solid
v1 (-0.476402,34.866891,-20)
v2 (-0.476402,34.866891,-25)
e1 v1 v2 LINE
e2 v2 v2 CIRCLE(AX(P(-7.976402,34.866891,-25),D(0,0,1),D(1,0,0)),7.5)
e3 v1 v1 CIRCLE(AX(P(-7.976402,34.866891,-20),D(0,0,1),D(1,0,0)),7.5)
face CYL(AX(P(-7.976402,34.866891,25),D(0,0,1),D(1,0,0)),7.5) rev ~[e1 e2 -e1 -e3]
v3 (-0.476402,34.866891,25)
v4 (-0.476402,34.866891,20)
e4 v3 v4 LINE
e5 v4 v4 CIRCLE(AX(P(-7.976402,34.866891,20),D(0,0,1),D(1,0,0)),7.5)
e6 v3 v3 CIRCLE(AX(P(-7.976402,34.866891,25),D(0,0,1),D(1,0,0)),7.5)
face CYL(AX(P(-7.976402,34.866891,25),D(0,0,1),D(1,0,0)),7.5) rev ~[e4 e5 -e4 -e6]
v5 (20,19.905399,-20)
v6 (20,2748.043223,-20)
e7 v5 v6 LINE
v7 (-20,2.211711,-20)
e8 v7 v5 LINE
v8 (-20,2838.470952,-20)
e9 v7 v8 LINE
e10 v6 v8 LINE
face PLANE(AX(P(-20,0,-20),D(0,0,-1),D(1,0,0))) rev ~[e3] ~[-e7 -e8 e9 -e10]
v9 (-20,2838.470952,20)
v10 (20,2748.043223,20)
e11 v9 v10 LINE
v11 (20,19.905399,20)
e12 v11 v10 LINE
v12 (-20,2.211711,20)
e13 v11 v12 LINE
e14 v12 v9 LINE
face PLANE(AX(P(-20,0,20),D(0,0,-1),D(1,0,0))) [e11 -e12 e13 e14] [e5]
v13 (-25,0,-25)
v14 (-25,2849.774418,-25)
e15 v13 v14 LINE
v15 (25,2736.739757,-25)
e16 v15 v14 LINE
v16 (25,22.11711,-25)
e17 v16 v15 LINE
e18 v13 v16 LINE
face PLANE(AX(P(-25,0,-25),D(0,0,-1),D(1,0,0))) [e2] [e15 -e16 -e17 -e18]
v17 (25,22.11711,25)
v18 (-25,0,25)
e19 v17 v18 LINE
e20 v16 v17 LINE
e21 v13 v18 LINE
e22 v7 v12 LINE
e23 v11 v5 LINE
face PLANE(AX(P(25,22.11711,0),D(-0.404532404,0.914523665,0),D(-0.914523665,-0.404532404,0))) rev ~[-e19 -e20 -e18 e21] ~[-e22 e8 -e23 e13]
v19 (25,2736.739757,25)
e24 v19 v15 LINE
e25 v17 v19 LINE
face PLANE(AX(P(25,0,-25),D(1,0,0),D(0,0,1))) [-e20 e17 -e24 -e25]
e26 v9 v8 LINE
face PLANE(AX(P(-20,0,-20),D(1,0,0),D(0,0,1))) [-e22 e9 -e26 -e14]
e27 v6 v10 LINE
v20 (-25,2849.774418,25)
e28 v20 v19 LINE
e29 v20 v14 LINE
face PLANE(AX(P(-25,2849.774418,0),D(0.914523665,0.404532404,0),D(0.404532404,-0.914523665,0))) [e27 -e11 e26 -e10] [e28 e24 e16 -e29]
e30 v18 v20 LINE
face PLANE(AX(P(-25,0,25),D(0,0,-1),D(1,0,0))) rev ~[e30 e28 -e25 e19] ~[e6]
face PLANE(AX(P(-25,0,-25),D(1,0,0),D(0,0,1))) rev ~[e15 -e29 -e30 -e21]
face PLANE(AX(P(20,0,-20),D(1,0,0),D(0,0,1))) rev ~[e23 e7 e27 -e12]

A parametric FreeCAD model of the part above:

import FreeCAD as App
import Part
import Sketcher
from FreeCAD import Vector
Q = App.Units.Quantity

doc = App.newDocument("Part")
body = doc.addObject("PartDesign::Body", "Body")

# Sketch on XZ plane
sketch1 = body.newObject("Sketcher::SketchObject", "Sketch")
sketch1.AttachmentSupport = (doc.getObject("XZ_Plane"), [""])
sketch1.MapMode = "FlatFace"
sketch1.addGeometry([
    Part.LineSegment(Vector(-25, 25, 0), Vector(-25, -25, 0)),  # 0
    Part.LineSegment(Vector(-25, -25, 0), Vector(25, -25, 0)),  # 1
    Part.LineSegment(Vector(25, -25, 0), Vector(25, 25, 0)),  # 2
    Part.LineSegment(Vector(25, 25, 0), Vector(-25, 25, 0)),  # 3
    Part.LineSegment(Vector(20, -20, 0), Vector(-20, -20, 0)),  # 4
    Part.LineSegment(Vector(-20, -20, 0), Vector(-20, 20, 0)),  # 5
    Part.LineSegment(Vector(-20, 20, 0), Vector(20, 20, 0)),  # 6
    Part.LineSegment(Vector(20, 20, 0), Vector(20, -20, 0)),  # 7
], False)
sketch1.addConstraint([
    Sketcher.Constraint("Coincident", 0, 2, 1, 1),
    Sketcher.Constraint("Coincident", 1, 2, 2, 1),
    Sketcher.Constraint("Coincident", 2, 2, 3, 1),
    Sketcher.Constraint("Coincident", 3, 2, 0, 1),
    Sketcher.Constraint("Coincident", 4, 2, 5, 1),
    Sketcher.Constraint("Coincident", 5, 2, 6, 1),
    Sketcher.Constraint("Coincident", 6, 2, 7, 1),
    Sketcher.Constraint("Coincident", 7, 2, 4, 1),
    Sketcher.Constraint("Vertical", 0),
    Sketcher.Constraint("Horizontal", 1),
    Sketcher.Constraint("Vertical", 2),
    Sketcher.Constraint("Horizontal", 3),
    Sketcher.Constraint("Horizontal", 4),
    Sketcher.Constraint("Vertical", 5),
    Sketcher.Constraint("Horizontal", 6),
    Sketcher.Constraint("Vertical", 7),
    Sketcher.Constraint("Symmetric", 0, 2, 2, 2, -1, 1),
    Sketcher.Constraint("Symmetric", 4, 2, 6, 2, -1, 1),
    Sketcher.Constraint("Equal", 3, 0),
    Sketcher.Constraint("Equal", 6, 5),
    Sketcher.Constraint("DistanceX", 1, 1, 1, 2, Q("50 mm")),
    Sketcher.Constraint("DistanceX", 4, 2, 4, 1, Q("40 mm")),
])
pad1 = body.newObject("PartDesign::Pad", "Pad")
pad1.Profile = sketch1
pad1.Length = 3000
pad1.Reversed = True

# Sketch on XY plane
sketch2 = body.newObject("Sketcher::SketchObject", "Sketch001")
sketch2.AttachmentSupport = (doc.getObject("XY_Plane"), [""])
sketch2.MapMode = "FlatFace"
sketch2.addGeometry([
    Part.LineSegment(Vector(-25, 3000, 0), Vector(-25, 2849.774418, 0)),  # 0
    Part.LineSegment(Vector(-25, 2849.774418, 0), Vector(25, 2736.739757, 0)),  # 1
    Part.LineSegment(Vector(25, 2736.739757, 0), Vector(25, 3000, 0)),  # 2
    Part.LineSegment(Vector(25, 3000, 0), Vector(-25, 3000, 0)),  # 3
    Part.LineSegment(Vector(25, 22.11711, 0), Vector(-25, 0, 0)),  # 4
    Part.LineSegment(Vector(-25, 0, 0), Vector(25, 0, 0)),  # 5
    Part.LineSegment(Vector(25, 0, 0), Vector(25, 22.11711, 0)),  # 6
], False)
sketch2.addConstraint([
    Sketcher.Constraint("Coincident", 0, 2, 1, 1),
    Sketcher.Constraint("Coincident", 1, 2, 2, 1),
    Sketcher.Constraint("Coincident", 2, 2, 3, 1),
    Sketcher.Constraint("Coincident", 3, 2, 0, 1),
    Sketcher.Constraint("Coincident", 4, 2, 5, 1),
    Sketcher.Constraint("Coincident", 5, 2, 6, 1),
    Sketcher.Constraint("Coincident", 6, 2, 4, 1),
    Sketcher.Constraint("Vertical", 0),
    Sketcher.Constraint("Vertical", 2),
    Sketcher.Constraint("Horizontal", 3),
    Sketcher.Constraint("Horizontal", 5),
    Sketcher.Constraint("Vertical", 6),
    Sketcher.Constraint("Symmetric", 4, 2, 5, 2, -1, 1),
    Sketcher.Constraint("Perpendicular", 1, 4),
    Sketcher.Constraint("Vertical", 3, 2, 4, 2),
    Sketcher.Constraint("Vertical", 2, 2, 5, 2),
    Sketcher.Constraint("DistanceX", 3, 2, 3, 1, Q("50 mm")),
    Sketcher.Constraint("DistanceY", -1, 1, 2, 2, Q("3000 mm")),
    Sketcher.Constraint("DistanceY", 0, 2, 0, 1, Q("150.225582 mm")),
    Sketcher.Constraint("DistanceY", 6, 1, 6, 2, Q("22.11711 mm")),
])
pocket1 = body.newObject("PartDesign::Pocket", "Pocket")
pocket1.Profile = sketch2
pocket1.Type = "ThroughAll"
pocket1.Midplane = True

# Sketch on XY plane
sketch3 = body.newObject("Sketcher::SketchObject", "Sketch002")
sketch3.AttachmentSupport = (doc.getObject("XY_Plane"), [""])
sketch3.MapMode = "FlatFace"
sketch3.AttachmentOffset = App.Placement(Vector(0, 0, 25), App.Rotation())
sketch3.addGeometry(Part.Circle(Vector(-7.976402, 34.866891, 0), Vector(0, 0, 1), 7.5), False)
sketch3.addConstraint([
    Sketcher.Constraint("Diameter", 0, Q("15 mm")),
    Sketcher.Constraint("DistanceX", 0, 3, -1, 1, Q("7.976402 mm")),
    Sketcher.Constraint("DistanceY", -1, 1, 0, 3, Q("34.866891 mm")),
])
pocket2 = body.newObject("PartDesign::Pocket", "Pocket001")
pocket2.Profile = sketch3
pocket2.Type = "ThroughAll"

doc.recompute()
